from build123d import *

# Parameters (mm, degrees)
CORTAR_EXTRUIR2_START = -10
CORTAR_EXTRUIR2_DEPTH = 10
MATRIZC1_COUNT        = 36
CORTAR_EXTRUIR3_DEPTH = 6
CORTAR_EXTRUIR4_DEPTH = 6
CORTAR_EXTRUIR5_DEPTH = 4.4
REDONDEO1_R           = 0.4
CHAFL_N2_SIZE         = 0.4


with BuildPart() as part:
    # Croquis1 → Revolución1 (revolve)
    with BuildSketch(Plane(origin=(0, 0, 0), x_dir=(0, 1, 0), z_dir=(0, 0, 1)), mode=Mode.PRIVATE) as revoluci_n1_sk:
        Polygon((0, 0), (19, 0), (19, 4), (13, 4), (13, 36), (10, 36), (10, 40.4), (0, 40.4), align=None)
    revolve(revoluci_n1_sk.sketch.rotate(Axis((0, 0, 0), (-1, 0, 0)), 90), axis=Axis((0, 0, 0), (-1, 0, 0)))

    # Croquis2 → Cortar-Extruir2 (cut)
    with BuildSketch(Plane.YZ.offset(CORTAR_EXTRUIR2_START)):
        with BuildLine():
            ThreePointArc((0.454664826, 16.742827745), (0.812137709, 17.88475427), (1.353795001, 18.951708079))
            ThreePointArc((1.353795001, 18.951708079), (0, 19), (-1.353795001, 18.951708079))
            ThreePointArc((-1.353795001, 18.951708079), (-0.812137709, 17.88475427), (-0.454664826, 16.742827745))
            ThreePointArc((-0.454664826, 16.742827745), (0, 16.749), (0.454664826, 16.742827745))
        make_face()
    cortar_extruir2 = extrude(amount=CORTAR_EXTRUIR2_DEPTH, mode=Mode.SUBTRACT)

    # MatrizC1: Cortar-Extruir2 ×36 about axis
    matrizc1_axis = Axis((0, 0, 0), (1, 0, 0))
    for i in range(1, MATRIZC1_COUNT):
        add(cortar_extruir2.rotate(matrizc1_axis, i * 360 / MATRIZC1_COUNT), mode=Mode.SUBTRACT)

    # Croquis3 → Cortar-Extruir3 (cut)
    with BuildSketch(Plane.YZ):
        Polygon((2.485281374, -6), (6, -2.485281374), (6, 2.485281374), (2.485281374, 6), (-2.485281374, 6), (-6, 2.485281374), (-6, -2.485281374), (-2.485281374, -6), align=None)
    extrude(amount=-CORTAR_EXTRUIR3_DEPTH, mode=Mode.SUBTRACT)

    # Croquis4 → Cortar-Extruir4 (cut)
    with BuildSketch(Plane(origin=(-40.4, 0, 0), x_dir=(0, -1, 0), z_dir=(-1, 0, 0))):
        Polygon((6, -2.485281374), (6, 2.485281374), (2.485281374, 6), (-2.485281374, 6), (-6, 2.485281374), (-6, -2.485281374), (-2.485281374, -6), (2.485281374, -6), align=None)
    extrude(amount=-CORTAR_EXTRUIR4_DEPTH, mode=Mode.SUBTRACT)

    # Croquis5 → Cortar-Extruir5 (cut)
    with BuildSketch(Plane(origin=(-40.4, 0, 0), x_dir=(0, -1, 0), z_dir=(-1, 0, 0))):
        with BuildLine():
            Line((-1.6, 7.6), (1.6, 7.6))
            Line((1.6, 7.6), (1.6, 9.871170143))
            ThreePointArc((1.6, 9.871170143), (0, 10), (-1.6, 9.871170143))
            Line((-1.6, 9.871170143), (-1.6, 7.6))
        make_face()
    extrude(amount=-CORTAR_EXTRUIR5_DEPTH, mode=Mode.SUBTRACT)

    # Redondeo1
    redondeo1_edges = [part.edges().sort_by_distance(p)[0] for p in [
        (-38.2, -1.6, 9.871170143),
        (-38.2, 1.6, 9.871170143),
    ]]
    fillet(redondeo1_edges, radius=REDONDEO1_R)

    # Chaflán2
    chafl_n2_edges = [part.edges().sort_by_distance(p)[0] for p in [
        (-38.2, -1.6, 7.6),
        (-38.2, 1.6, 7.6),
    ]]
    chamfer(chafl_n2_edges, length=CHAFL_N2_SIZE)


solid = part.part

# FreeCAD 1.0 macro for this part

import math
import FreeCAD as App
import Part
import Sketcher
Q = App.Units.Quantity


def edges_at(feature, points):
    """Names of the edges that pass closest to the given points."""
    edges = feature.Shape.Edges
    near = lambda p: min(range(len(edges)), key=lambda i: edges[i].distToShape(Part.Vertex(*p))[0])
    return sorted({f"Edge{near(p) + 1}" for p in points})

doc = App.newDocument("Part")
body = doc.addObject("PartDesign::Body", "Body")

sketch1 = body.newObject("Sketcher::SketchObject", "Sketch")
sketch1.AttachmentSupport = (doc.getObject("XY_Plane"), [""])
sketch1.MapMode = "FlatFace"
sketch1.addGeometry([
    Part.LineSegment(App.Vector(0, 0, 0), App.Vector(0, 19, 0)),
    Part.LineSegment(App.Vector(0, 19, 0), App.Vector(-4, 19, 0)),
    Part.LineSegment(App.Vector(-4, 19, 0), App.Vector(-4, 13, 0)),
    Part.LineSegment(App.Vector(-4, 13, 0), App.Vector(-36, 13, 0)),
    Part.LineSegment(App.Vector(-36, 13, 0), App.Vector(-36, 10, 0)),
    Part.LineSegment(App.Vector(-36, 10, 0), App.Vector(-40.4, 10, 0)),
    Part.LineSegment(App.Vector(-40.4, 10, 0), App.Vector(-40.4, 0, 0)),
    Part.LineSegment(App.Vector(-40.4, 0, 0), App.Vector(0, 0, 0)),
], False)
sketch1.addConstraint([
    Sketcher.Constraint("Coincident", 0, 2, 1, 1),
    Sketcher.Constraint("Coincident", 1, 2, 2, 1),
    Sketcher.Constraint("Coincident", 2, 2, 3, 1),
    Sketcher.Constraint("Coincident", 3, 2, 4, 1),
    Sketcher.Constraint("Coincident", 4, 2, 5, 1),
    Sketcher.Constraint("Coincident", 5, 2, 6, 1),
    Sketcher.Constraint("Coincident", 6, 2, 7, 1),
    Sketcher.Constraint("Coincident", 7, 2, 0, 1),
    Sketcher.Constraint("Vertical", 0),
    Sketcher.Constraint("Horizontal", 1),
    Sketcher.Constraint("Vertical", 2),
    Sketcher.Constraint("Horizontal", 3),
    Sketcher.Constraint("Vertical", 4),
    Sketcher.Constraint("Horizontal", 5),
    Sketcher.Constraint("Vertical", 6),
    Sketcher.Constraint("Horizontal", 7),
    Sketcher.Constraint("Coincident", 7, 2, -1, 1),
    Sketcher.Constraint("DistanceX", 1, 2, 1, 1, Q("4 mm")),
    Sketcher.Constraint("DistanceX", 3, 2, 3, 1, Q("32 mm")),
    Sketcher.Constraint("DistanceY", 0, 1, 0, 2, Q("19 mm")),
    Sketcher.Constraint("DistanceY", 2, 2, 2, 1, Q("6 mm")),
    Sketcher.Constraint("DistanceY", 4, 2, 4, 1, Q("3 mm")),
    Sketcher.Constraint("DistanceX", 5, 2, 5, 1, Q("4.4 mm")),
])
revolution = body.newObject("PartDesign::Revolution", "Revolution")
revolution.Profile = sketch1
revolution.ReferenceAxis = (sketch1, ["H_Axis"])
revolution.Angle = 360

sketch2 = body.newObject("Sketcher::SketchObject", "Sketch001")
sketch2.AttachmentSupport = (doc.getObject("YZ_Plane"), [""])
sketch2.MapMode = "FlatFace"
sketch2.AttachmentOffset = App.Placement(App.Vector(0, 0, -10), App.Rotation())
sketch2.addGeometry([
    Part.ArcOfCircle(Part.Circle(App.Vector(7.48083, 15.170247, 0), App.Vector(0, 0, 1), 7.2), math.radians(148.318094), math.radians(167.384103)),
    Part.ArcOfCircle(Part.Circle(App.Vector(0, 0, 0), App.Vector(0, 0, 1), 19), math.radians(85.914078), math.radians(94.085922)),
    Part.ArcOfCircle(Part.Circle(App.Vector(-7.48083, 15.170247, 0), App.Vector(0, 0, 1), 7.2), math.radians(12.615897), math.radians(31.681906)),
    Part.ArcOfCircle(Part.Circle(App.Vector(0, 0, 0), App.Vector(0, 0, 1), 16.749), math.radians(88.44447), math.radians(91.55553)),
], False)
sketch2.addConstraint([
    Sketcher.Constraint("Coincident", 0, 1, 1, 1),
    Sketcher.Constraint("Coincident", 1, 2, 2, 2),
    Sketcher.Constraint("Coincident", 2, 1, 3, 2),
    Sketcher.Constraint("Coincident", 3, 1, 0, 2),
    Sketcher.Constraint("Coincident", 1, 3, -1, 1),
    Sketcher.Constraint("Coincident", 3, 3, -1, 1),
    Sketcher.Constraint("Equal", 0, 2),
    Sketcher.Constraint("Symmetric", 0, 3, 2, 3, -2),
    Sketcher.Constraint("Radius", 1, Q("19 mm")),
    Sketcher.Constraint("Radius", 0, Q("7.2 mm")),
    Sketcher.Constraint("Radius", 3, Q("16.749 mm")),
    Sketcher.Constraint("DistanceX", -1, 1, 0, 3, Q("7.48083 mm")),
    Sketcher.Constraint("DistanceY", -1, 1, 0, 1, Q("18.951708 mm")),
])
pocket1 = body.newObject("PartDesign::Pocket", "Pocket")
pocket1.Profile = sketch2
pocket1.Length = 10
pocket1.Reversed = True
doc.recompute()

polarpattern = body.newObject("PartDesign::PolarPattern", "PolarPattern")
polarpattern.Originals = [pocket1]
polarpattern.Axis = (doc.getObject("X_Axis"), [""])
polarpattern.Angle = 360
polarpattern.Occurrences = 36
body.Tip = polarpattern

sketch3 = body.newObject("Sketcher::SketchObject", "Sketch002")
sketch3.AttachmentSupport = (doc.getObject("YZ_Plane"), [""])
sketch3.MapMode = "FlatFace"
sketch3.addGeometry([
    Part.LineSegment(App.Vector(2.485281, -6, 0), App.Vector(6, -2.485281, 0)),
    Part.LineSegment(App.Vector(6, -2.485281, 0), App.Vector(6, 2.485281, 0)),
    Part.LineSegment(App.Vector(6, 2.485281, 0), App.Vector(2.485281, 6, 0)),
    Part.LineSegment(App.Vector(2.485281, 6, 0), App.Vector(-2.485281, 6, 0)),
    Part.LineSegment(App.Vector(-2.485281, 6, 0), App.Vector(-6, 2.485281, 0)),
    Part.LineSegment(App.Vector(-6, 2.485281, 0), App.Vector(-6, -2.485281, 0)),
    Part.LineSegment(App.Vector(-6, -2.485281, 0), App.Vector(-2.485281, -6, 0)),
    Part.LineSegment(App.Vector(-2.485281, -6, 0), App.Vector(2.485281, -6, 0)),
], False)
sketch3.addConstraint([
    Sketcher.Constraint("Coincident", 0, 2, 1, 1),
    Sketcher.Constraint("Coincident", 1, 2, 2, 1),
    Sketcher.Constraint("Coincident", 2, 2, 3, 1),
    Sketcher.Constraint("Coincident", 3, 2, 4, 1),
    Sketcher.Constraint("Coincident", 4, 2, 5, 1),
    Sketcher.Constraint("Coincident", 5, 2, 6, 1),
    Sketcher.Constraint("Coincident", 6, 2, 7, 1),
    Sketcher.Constraint("Coincident", 7, 2, 0, 1),
    Sketcher.Constraint("Vertical", 1),
    Sketcher.Constraint("Horizontal", 3),
    Sketcher.Constraint("Vertical", 5),
    Sketcher.Constraint("Horizontal", 7),
    Sketcher.Constraint("Symmetric", 0, 2, 4, 2, -1, 1),
    Sketcher.Constraint("Symmetric", 2, 2, 6, 2, -1, 1),
    Sketcher.Constraint("Perpendicular", 0, 2),
    Sketcher.Constraint("Perpendicular", 2, 4),
    Sketcher.Constraint("Perpendicular", 4, 6),
    Sketcher.Constraint("Horizontal", 1, 2, 4, 2),
    Sketcher.Constraint("Vertical", 3, 2, 6, 2),
    Sketcher.Constraint("Equal", 7, 1),
    Sketcher.Constraint("DistanceX", -1, 1, 0, 2, Q("6 mm")),
    Sketcher.Constraint("DistanceX", 3, 2, 3, 1, Q("4.970563 mm")),
])
pocket2 = body.newObject("PartDesign::Pocket", "Pocket001")
pocket2.Profile = sketch3
pocket2.Length = 6

sketch4 = body.newObject("Sketcher::SketchObject", "Sketch003")
sketch4.AttachmentSupport = (doc.getObject("YZ_Plane"), [""])
sketch4.MapMode = "FlatFace"
sketch4.AttachmentOffset = App.Placement(App.Vector(0, 0, -40.4), App.Rotation())
sketch4.addGeometry([
    Part.LineSegment(App.Vector(-6, -2.485281, 0), App.Vector(-6, 2.485281, 0)),
    Part.LineSegment(App.Vector(-6, 2.485281, 0), App.Vector(-2.485281, 6, 0)),
    Part.LineSegment(App.Vector(-2.485281, 6, 0), App.Vector(2.485281, 6, 0)),
    Part.LineSegment(App.Vector(2.485281, 6, 0), App.Vector(6, 2.485281, 0)),
    Part.LineSegment(App.Vector(6, 2.485281, 0), App.Vector(6, -2.485281, 0)),
    Part.LineSegment(App.Vector(6, -2.485281, 0), App.Vector(2.485281, -6, 0)),
    Part.LineSegment(App.Vector(2.485281, -6, 0), App.Vector(-2.485281, -6, 0)),
    Part.LineSegment(App.Vector(-2.485281, -6, 0), App.Vector(-6, -2.485281, 0)),
], False)
sketch4.addConstraint([
    Sketcher.Constraint("Coincident", 0, 2, 1, 1),
    Sketcher.Constraint("Coincident", 1, 2, 2, 1),
    Sketcher.Constraint("Coincident", 2, 2, 3, 1),
    Sketcher.Constraint("Coincident", 3, 2, 4, 1),
    Sketcher.Constraint("Coincident", 4, 2, 5, 1),
    Sketcher.Constraint("Coincident", 5, 2, 6, 1),
    Sketcher.Constraint("Coincident", 6, 2, 7, 1),
    Sketcher.Constraint("Coincident", 7, 2, 0, 1),
    Sketcher.Constraint("Vertical", 0),
    Sketcher.Constraint("Horizontal", 2),
    Sketcher.Constraint("Vertical", 4),
    Sketcher.Constraint("Horizontal", 6),
    Sketcher.Constraint("Symmetric", 0, 2, 4, 2, -1, 1),
    Sketcher.Constraint("Symmetric", 1, 2, 5, 2, -1, 1),
    Sketcher.Constraint("Perpendicular", 1, 3),
    Sketcher.Constraint("Perpendicular", 5, 7),
    Sketcher.Constraint("Horizontal", 0, 2, 3, 2),
    Sketcher.Constraint("Horizontal", 4, 2, 7, 2),
    Sketcher.Constraint("Vertical", 2, 2, 5, 2),
    Sketcher.Constraint("Equal", 6, 0),
    Sketcher.Constraint("DistanceX", 0, 2, -1, 1, Q("6 mm")),
    Sketcher.Constraint("DistanceX", 2, 1, 2, 2, Q("4.970563 mm")),
])
pocket3 = body.newObject("PartDesign::Pocket", "Pocket002")
pocket3.Profile = sketch4
pocket3.Length = 6
pocket3.Reversed = True

sketch5 = body.newObject("Sketcher::SketchObject", "Sketch004")
sketch5.AttachmentSupport = (doc.getObject("YZ_Plane"), [""])
sketch5.MapMode = "FlatFace"
sketch5.AttachmentOffset = App.Placement(App.Vector(0, 0, -40.4), App.Rotation())
sketch5.addGeometry([
    Part.LineSegment(App.Vector(1.6, 7.6, 0), App.Vector(-1.6, 7.6, 0)),
    Part.LineSegment(App.Vector(-1.6, 7.6, 0), App.Vector(-1.6, 9.87117, 0)),
    Part.ArcOfCircle(Part.Circle(App.Vector(0, 0, 0), App.Vector(0, 0, 1), 10), math.radians(80.793104), math.radians(99.206896)),
    Part.LineSegment(App.Vector(1.6, 9.87117, 0), App.Vector(1.6, 7.6, 0)),
], False)
sketch5.addConstraint([
    Sketcher.Constraint("Coincident", 0, 2, 1, 1),
    Sketcher.Constraint("Coincident", 1, 2, 2, 2),
    Sketcher.Constraint("Coincident", 2, 1, 3, 1),
    Sketcher.Constraint("Coincident", 3, 2, 0, 1),
    Sketcher.Constraint("Horizontal", 0),
    Sketcher.Constraint("Vertical", 1),
    Sketcher.Constraint("Vertical", 3),
    Sketcher.Constraint("Coincident", 2, 3, -1, 1),
    Sketcher.Constraint("Horizontal", 1, 2, 2, 1),
    Sketcher.Constraint("Radius", 2, Q("10 mm")),
    Sketcher.Constraint("DistanceX", 0, 2, 0, 1, Q("3.2 mm")),
    Sketcher.Constraint("DistanceY", -1, 1, 0, 2, Q("7.6 mm")),
])
pocket4 = body.newObject("PartDesign::Pocket", "Pocket003")
pocket4.Profile = sketch5
pocket4.Length = 4.4
pocket4.Reversed = True
doc.recompute()

fillet = body.newObject("PartDesign::Fillet", "Fillet")
fillet.Base = (pocket4, edges_at(pocket4, [(-38.2, -1.6, 9.871), (-38.2, 1.6, 9.871)]))
fillet.Radius = 0.4
doc.recompute()

chamfer = body.newObject("PartDesign::Chamfer", "Chamfer")
chamfer.Base = (fillet, edges_at(fillet, [(-38.2, -1.6, 7.6), (-38.2, 1.6, 7.6)]))
chamfer.Size = 0.4

doc.recompute()
